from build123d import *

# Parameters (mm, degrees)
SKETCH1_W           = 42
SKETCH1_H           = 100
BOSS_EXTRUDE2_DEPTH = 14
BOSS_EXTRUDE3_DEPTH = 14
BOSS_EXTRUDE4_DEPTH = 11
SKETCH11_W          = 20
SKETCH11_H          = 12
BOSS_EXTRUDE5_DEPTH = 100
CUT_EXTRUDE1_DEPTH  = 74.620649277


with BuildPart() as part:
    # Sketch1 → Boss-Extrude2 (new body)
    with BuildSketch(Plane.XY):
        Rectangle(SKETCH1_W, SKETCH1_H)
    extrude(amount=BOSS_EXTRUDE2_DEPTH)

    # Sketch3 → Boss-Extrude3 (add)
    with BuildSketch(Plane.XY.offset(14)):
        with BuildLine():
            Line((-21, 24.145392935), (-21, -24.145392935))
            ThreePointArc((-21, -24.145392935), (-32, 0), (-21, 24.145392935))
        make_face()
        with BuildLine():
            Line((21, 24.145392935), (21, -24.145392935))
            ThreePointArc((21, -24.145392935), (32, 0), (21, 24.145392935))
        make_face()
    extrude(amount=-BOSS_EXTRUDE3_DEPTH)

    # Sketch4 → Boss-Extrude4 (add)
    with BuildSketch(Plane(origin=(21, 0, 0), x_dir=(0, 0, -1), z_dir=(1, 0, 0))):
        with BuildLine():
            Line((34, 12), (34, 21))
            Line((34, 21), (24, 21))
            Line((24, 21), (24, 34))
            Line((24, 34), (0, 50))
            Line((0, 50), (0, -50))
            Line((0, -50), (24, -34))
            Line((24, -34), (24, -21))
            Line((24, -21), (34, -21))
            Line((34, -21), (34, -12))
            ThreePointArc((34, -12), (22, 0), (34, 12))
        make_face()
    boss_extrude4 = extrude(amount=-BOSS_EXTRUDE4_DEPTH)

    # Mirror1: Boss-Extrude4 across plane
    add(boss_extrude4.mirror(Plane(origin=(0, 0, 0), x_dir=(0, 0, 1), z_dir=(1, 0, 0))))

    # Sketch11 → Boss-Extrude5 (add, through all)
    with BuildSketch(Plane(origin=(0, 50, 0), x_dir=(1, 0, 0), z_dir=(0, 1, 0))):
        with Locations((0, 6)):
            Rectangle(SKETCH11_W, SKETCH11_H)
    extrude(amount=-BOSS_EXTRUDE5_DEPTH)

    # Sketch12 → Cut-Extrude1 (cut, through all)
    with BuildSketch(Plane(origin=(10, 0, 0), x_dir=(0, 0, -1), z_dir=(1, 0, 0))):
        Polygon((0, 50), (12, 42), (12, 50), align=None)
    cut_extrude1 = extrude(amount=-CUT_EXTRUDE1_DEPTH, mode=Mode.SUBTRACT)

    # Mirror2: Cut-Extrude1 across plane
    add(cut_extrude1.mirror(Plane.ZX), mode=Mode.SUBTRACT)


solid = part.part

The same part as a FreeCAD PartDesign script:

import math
import FreeCAD as App
import Part
import Sketcher

doc = App.newDocument("Part")
params = doc.addObject("Spreadsheet::Sheet", "Params")
for row, (alias, value) in enumerate([
    ("sketch1_width", "42 mm"),
    ("sketch1_height", "100 mm"),
    ("pad1_length", "14 mm"),
    ("sketch2_radius", "32 mm"),
    ("pad2_length", "14 mm"),
    ("sketch3_radius", "12 mm"),
    ("sketch3_width", "9 mm"),
    ("sketch3_width2", "13 mm"),
    ("sketch3_width3", "100 mm"),
    ("sketch3_height", "10 mm"),
    ("pad3_length", "11 mm"),
    ("sketch4_width", "20 mm"),
    ("sketch4_height", "12 mm"),
    ("pad4_length", "100 mm"),
    ("sketch5_width", "8 mm"),
    ("sketch5_height", "12 mm"),
], start=1):
    params.set(f"A{row}", alias)
    params.set(f"B{row}", "=" + value)
    params.setAlias(f"B{row}", alias)

body = doc.addObject("PartDesign::Body", "Body")

# Sketch on XY plane
sketch1 = body.newObject("Sketcher::SketchObject", "Sketch")
sketch1.AttachmentSupport = (doc.getObject("XY_Plane"), [""])
sketch1.MapMode = "FlatFace"
sketch1.addGeometry([
    Part.LineSegment(App.Vector(-21, 50, 0), App.Vector(-21, -50, 0)),
    Part.LineSegment(App.Vector(-21, -50, 0), App.Vector(21, -50, 0)),
    Part.LineSegment(App.Vector(21, -50, 0), App.Vector(21, 50, 0)),
    Part.LineSegment(App.Vector(21, 50, 0), App.Vector(-21, 50, 0)),
], False)
sketch1.addConstraint([
    Sketcher.Constraint("Coincident", 0, 2, 1, 1),
    Sketcher.Constraint("Coincident", 1, 2, 2, 1),
    Sketcher.Constraint("Coincident", 2, 2, 3, 1),
    Sketcher.Constraint("Coincident", 3, 2, 0, 1),
    Sketcher.Constraint("Vertical", 0),
    Sketcher.Constraint("Horizontal", 1),
    Sketcher.Constraint("Vertical", 2),
    Sketcher.Constraint("Horizontal", 3),
    Sketcher.Constraint("Symmetric", 0, 2, 2, 2, -1, 1),
    Sketcher.Constraint("DistanceX", 1, 1, 1, 2, 42.0),
    Sketcher.Constraint("DistanceY", 0, 2, 0, 1, 100.0),
])
sketch1.setExpression("Constraints[9]", "Params.sketch1_width")
sketch1.setExpression("Constraints[10]", "Params.sketch1_height")
pad1 = body.newObject("PartDesign::Pad", "Pad")
pad1.Profile = sketch1
pad1.setExpression("Length", "Params.pad1_length")

# Sketch on XY plane
sketch2 = body.newObject("Sketcher::SketchObject", "Sketch001")
sketch2.AttachmentSupport = (doc.getObject("XY_Plane"), [""])
sketch2.MapMode = "FlatFace"
sketch2.AttachmentOffset = App.Placement(App.Vector(0, 0, 14), App.Rotation())
sketch2.addGeometry([
    Part.LineSegment(App.Vector(-21, -24, 0), App.Vector(-21, 24, 0)),
    Part.ArcOfCircle(Part.Circle(App.Vector(0, 0, 0), App.Vector(0, 0, 1), 32), math.radians(131), math.radians(229)),
    Part.LineSegment(App.Vector(21, 24, 0), App.Vector(21, -24, 0)),
    Part.ArcOfCircle(Part.Circle(App.Vector(0, 0, 0), App.Vector(0, 0, 1), 32), math.radians(-49), math.radians(49)),
], False)
sketch2.addConstraint([
    Sketcher.Constraint("Coincident", 0, 1, 1, 2),
    Sketcher.Constraint("Coincident", 1, 1, 0, 2),
    Sketcher.Constraint("Coincident", 2, 1, 3, 2),
    Sketcher.Constraint("Coincident", 3, 1, 2, 2),
    Sketcher.Constraint("Vertical", 0),
    Sketcher.Constraint("Vertical", 2),
    Sketcher.Constraint("Coincident", 1, 3, -1, 1),
    Sketcher.Constraint("Coincident", 3, 3, -1, 1),
    Sketcher.Constraint("Equal", 1, 3),
    Sketcher.Constraint("Horizontal", 1, 1, 2, 1),
    Sketcher.Constraint("Radius", 1, 32.0),
    Sketcher.Constraint("DistanceX", 0, 1, -1, 1, 21.0),
])
sketch2.setExpression("Constraints[10]", "Params.sketch2_radius")
pad2 = body.newObject("PartDesign::Pad", "Pad001")
pad2.Profile = sketch2
pad2.setExpression("Length", "Params.pad2_length")
pad2.Reversed = True

# Sketch on YZ plane
sketch3 = body.newObject("Sketcher::SketchObject", "Sketch002")
sketch3.AttachmentSupport = (doc.getObject("YZ_Plane"), [""])
sketch3.MapMode = "FlatFace"
sketch3.AttachmentOffset = App.Placement(App.Vector(0, 0, 21), App.Rotation())
sketch3.addGeometry([
    Part.LineSegment(App.Vector(12, -34, 0), App.Vector(21, -34, 0)),  # 0
    Part.LineSegment(App.Vector(21, -34, 0), App.Vector(21, -24, 0)),  # 1
    Part.LineSegment(App.Vector(21, -24, 0), App.Vector(34, -24, 0)),  # 2
    Part.LineSegment(App.Vector(34, -24, 0), App.Vector(50, 0, 0)),  # 3
    Part.LineSegment(App.Vector(50, 0, 0), App.Vector(-50, 0, 0)),  # 4
    Part.LineSegment(App.Vector(-50, 0, 0), App.Vector(-34, -24, 0)),  # 5
    Part.LineSegment(App.Vector(-34, -24, 0), App.Vector(-21, -24, 0)),  # 6
    Part.LineSegment(App.Vector(-21, -24, 0), App.Vector(-21, -34, 0)),  # 7
    Part.LineSegment(App.Vector(-21, -34, 0), App.Vector(-12, -34, 0)),  # 8
    Part.ArcOfCircle(Part.Circle(App.Vector(0, -34, 0), App.Vector(0, 0, 1), 12), math.radians(0), math.radians(180)),  # 9
], False)
sketch3.addConstraint([
    Sketcher.Constraint("Coincident", 0, 2, 1, 1),
    Sketcher.Constraint("Coincident", 1, 2, 2, 1),
    Sketcher.Constraint("Coincident", 2, 2, 3, 1),
    Sketcher.Constraint("Coincident", 3, 2, 4, 1),
    Sketcher.Constraint("Coincident", 4, 2, 5, 1),
    Sketcher.Constraint("Coincident", 5, 2, 6, 1),
    Sketcher.Constraint("Coincident", 6, 2, 7, 1),
    Sketcher.Constraint("Coincident", 7, 2, 8, 1),
    Sketcher.Constraint("Coincident", 8, 2, 9, 2),
    Sketcher.Constraint("Coincident", 9, 1, 0, 1),
    Sketcher.Constraint("Horizontal", 0),
    Sketcher.Constraint("Vertical", 1),
    Sketcher.Constraint("Horizontal", 2),
    Sketcher.Constraint("Horizontal", 4),
    Sketcher.Constraint("Horizontal", 6),
    Sketcher.Constraint("Vertical", 7),
    Sketcher.Constraint("Horizontal", 8),
    Sketcher.Constraint("Symmetric", 3, 2, 4, 2, -1, 1),
    Sketcher.Constraint("Symmetric", 2, 2, 5, 2, -2),
    Sketcher.Constraint("Symmetric", 0, 2, 7, 2, -2),
    Sketcher.Constraint("PointOnObject", 9, 3, -2),
    Sketcher.Constraint("Horizontal", 9, 3, 0, 2),
    Sketcher.Constraint("Radius", 9, 12.0),
    Sketcher.Constraint("DistanceX", 0, 1, 0, 2, 9.0),
    Sketcher.Constraint("DistanceX", 2, 1, 2, 2, 13.0),
    Sketcher.Constraint("DistanceX", 4, 2, 4, 1, 100.0),
    Sketcher.Constraint("DistanceY", 1, 1, 1, 2, 10.0),
    Sketcher.Constraint("DistanceY", 9, 3, -1, 1, 34.0),
])
sketch3.setExpression("Constraints[22]", "Params.sketch3_radius")
sketch3.setExpression("Constraints[23]", "Params.sketch3_width")
sketch3.setExpression("Constraints[24]", "Params.sketch3_width2")
sketch3.setExpression("Constraints[25]", "Params.sketch3_width3")
sketch3.setExpression("Constraints[26]", "Params.sketch3_height")
pad3 = body.newObject("PartDesign::Pad", "Pad002")
pad3.Profile = sketch3
pad3.setExpression("Length", "Params.pad3_length")
pad3.Reversed = True
doc.recompute()

mirrored = body.newObject("PartDesign::Mirrored", "Mirrored")
mirrored.Originals = [pad3]
mirrored.MirrorPlane = (doc.getObject("YZ_Plane"), [""])
body.Tip = mirrored

# Sketch on XZ plane
sketch4 = body.newObject("Sketcher::SketchObject", "Sketch003")
sketch4.AttachmentSupport = (doc.getObject("XZ_Plane"), [""])
sketch4.MapMode = "FlatFace"
sketch4.AttachmentOffset = App.Placement(App.Vector(0, 0, -50), App.Rotation())
sketch4.addGeometry([
    Part.LineSegment(App.Vector(-10, -12, 0), App.Vector(-10, 0, 0)),
    Part.LineSegment(App.Vector(-10, 0, 0), App.Vector(10, 0, 0)),
    Part.LineSegment(App.Vector(10, 0, 0), App.Vector(10, -12, 0)),
    Part.LineSegment(App.Vector(10, -12, 0), App.Vector(-10, -12, 0)),
], False)
sketch4.addConstraint([
    Sketcher.Constraint("Coincident", 0, 2, 1, 1),
    Sketcher.Constraint("Coincident", 1, 2, 2, 1),
    Sketcher.Constraint("Coincident", 2, 2, 3, 1),
    Sketcher.Constraint("Coincident", 3, 2, 0, 1),
    Sketcher.Constraint("Vertical", 0),
    Sketcher.Constraint("Horizontal", 1),
    Sketcher.Constraint("Vertical", 2),
    Sketcher.Constraint("Horizontal", 3),
    Sketcher.Constraint("Symmetric", 0, 2, 1, 2, -1, 1),
    Sketcher.Constraint("DistanceX", 1, 1, 1, 2, 20.0),
    Sketcher.Constraint("DistanceY", 0, 1, 0, 2, 12.0),
])
sketch4.setExpression("Constraints[9]", "Params.sketch4_width")
sketch4.setExpression("Constraints[10]", "Params.sketch4_height")
pad4 = body.newObject("PartDesign::Pad", "Pad003")
pad4.Profile = sketch4
pad4.setExpression("Length", "Params.pad4_length")

# Sketch on YZ plane
sketch5 = body.newObject("Sketcher::SketchObject", "Sketch004")
sketch5.AttachmentSupport = (doc.getObject("YZ_Plane"), [""])
sketch5.MapMode = "FlatFace"
sketch5.AttachmentOffset = App.Placement(App.Vector(0, 0, 10), App.Rotation())
sketch5.addGeometry([
    Part.LineSegment(App.Vector(50, 0, 0), App.Vector(42, -12, 0)),
    Part.LineSegment(App.Vector(42, -12, 0), App.Vector(50, -12, 0)),
    Part.LineSegment(App.Vector(50, -12, 0), App.Vector(50, 0, 0)),
], False)
sketch5.addConstraint([
    Sketcher.Constraint("Coincident", 0, 2, 1, 1),
    Sketcher.Constraint("Coincident", 1, 2, 2, 1),
    Sketcher.Constraint("Coincident", 2, 2, 0, 1),
    Sketcher.Constraint("Horizontal", 1),
    Sketcher.Constraint("Vertical", 2),
    Sketcher.Constraint("PointOnObject", 2, 2, -1),
    Sketcher.Constraint("DistanceX", 1, 1, 1, 2, 8.0),
    Sketcher.Constraint("DistanceY", 2, 1, 2, 2, 12.0),
    Sketcher.Constraint("DistanceX", -1, 1, 0, 2, 42.0),
])
sketch5.setExpression("Constraints[6]", "Params.sketch5_width")
sketch5.setExpression("Constraints[7]", "Params.sketch5_height")
pocket1 = body.newObject("PartDesign::Pocket", "Pocket")
pocket1.Profile = sketch5
pocket1.Type = "ThroughAll"
doc.recompute()

mirrored2 = body.newObject("PartDesign::Mirrored", "Mirrored001")
mirrored2.Originals = [pocket1]
mirrored2.MirrorPlane = (doc.getObject("XZ_Plane"), [""])
body.Tip = mirrored2

doc.recompute()
